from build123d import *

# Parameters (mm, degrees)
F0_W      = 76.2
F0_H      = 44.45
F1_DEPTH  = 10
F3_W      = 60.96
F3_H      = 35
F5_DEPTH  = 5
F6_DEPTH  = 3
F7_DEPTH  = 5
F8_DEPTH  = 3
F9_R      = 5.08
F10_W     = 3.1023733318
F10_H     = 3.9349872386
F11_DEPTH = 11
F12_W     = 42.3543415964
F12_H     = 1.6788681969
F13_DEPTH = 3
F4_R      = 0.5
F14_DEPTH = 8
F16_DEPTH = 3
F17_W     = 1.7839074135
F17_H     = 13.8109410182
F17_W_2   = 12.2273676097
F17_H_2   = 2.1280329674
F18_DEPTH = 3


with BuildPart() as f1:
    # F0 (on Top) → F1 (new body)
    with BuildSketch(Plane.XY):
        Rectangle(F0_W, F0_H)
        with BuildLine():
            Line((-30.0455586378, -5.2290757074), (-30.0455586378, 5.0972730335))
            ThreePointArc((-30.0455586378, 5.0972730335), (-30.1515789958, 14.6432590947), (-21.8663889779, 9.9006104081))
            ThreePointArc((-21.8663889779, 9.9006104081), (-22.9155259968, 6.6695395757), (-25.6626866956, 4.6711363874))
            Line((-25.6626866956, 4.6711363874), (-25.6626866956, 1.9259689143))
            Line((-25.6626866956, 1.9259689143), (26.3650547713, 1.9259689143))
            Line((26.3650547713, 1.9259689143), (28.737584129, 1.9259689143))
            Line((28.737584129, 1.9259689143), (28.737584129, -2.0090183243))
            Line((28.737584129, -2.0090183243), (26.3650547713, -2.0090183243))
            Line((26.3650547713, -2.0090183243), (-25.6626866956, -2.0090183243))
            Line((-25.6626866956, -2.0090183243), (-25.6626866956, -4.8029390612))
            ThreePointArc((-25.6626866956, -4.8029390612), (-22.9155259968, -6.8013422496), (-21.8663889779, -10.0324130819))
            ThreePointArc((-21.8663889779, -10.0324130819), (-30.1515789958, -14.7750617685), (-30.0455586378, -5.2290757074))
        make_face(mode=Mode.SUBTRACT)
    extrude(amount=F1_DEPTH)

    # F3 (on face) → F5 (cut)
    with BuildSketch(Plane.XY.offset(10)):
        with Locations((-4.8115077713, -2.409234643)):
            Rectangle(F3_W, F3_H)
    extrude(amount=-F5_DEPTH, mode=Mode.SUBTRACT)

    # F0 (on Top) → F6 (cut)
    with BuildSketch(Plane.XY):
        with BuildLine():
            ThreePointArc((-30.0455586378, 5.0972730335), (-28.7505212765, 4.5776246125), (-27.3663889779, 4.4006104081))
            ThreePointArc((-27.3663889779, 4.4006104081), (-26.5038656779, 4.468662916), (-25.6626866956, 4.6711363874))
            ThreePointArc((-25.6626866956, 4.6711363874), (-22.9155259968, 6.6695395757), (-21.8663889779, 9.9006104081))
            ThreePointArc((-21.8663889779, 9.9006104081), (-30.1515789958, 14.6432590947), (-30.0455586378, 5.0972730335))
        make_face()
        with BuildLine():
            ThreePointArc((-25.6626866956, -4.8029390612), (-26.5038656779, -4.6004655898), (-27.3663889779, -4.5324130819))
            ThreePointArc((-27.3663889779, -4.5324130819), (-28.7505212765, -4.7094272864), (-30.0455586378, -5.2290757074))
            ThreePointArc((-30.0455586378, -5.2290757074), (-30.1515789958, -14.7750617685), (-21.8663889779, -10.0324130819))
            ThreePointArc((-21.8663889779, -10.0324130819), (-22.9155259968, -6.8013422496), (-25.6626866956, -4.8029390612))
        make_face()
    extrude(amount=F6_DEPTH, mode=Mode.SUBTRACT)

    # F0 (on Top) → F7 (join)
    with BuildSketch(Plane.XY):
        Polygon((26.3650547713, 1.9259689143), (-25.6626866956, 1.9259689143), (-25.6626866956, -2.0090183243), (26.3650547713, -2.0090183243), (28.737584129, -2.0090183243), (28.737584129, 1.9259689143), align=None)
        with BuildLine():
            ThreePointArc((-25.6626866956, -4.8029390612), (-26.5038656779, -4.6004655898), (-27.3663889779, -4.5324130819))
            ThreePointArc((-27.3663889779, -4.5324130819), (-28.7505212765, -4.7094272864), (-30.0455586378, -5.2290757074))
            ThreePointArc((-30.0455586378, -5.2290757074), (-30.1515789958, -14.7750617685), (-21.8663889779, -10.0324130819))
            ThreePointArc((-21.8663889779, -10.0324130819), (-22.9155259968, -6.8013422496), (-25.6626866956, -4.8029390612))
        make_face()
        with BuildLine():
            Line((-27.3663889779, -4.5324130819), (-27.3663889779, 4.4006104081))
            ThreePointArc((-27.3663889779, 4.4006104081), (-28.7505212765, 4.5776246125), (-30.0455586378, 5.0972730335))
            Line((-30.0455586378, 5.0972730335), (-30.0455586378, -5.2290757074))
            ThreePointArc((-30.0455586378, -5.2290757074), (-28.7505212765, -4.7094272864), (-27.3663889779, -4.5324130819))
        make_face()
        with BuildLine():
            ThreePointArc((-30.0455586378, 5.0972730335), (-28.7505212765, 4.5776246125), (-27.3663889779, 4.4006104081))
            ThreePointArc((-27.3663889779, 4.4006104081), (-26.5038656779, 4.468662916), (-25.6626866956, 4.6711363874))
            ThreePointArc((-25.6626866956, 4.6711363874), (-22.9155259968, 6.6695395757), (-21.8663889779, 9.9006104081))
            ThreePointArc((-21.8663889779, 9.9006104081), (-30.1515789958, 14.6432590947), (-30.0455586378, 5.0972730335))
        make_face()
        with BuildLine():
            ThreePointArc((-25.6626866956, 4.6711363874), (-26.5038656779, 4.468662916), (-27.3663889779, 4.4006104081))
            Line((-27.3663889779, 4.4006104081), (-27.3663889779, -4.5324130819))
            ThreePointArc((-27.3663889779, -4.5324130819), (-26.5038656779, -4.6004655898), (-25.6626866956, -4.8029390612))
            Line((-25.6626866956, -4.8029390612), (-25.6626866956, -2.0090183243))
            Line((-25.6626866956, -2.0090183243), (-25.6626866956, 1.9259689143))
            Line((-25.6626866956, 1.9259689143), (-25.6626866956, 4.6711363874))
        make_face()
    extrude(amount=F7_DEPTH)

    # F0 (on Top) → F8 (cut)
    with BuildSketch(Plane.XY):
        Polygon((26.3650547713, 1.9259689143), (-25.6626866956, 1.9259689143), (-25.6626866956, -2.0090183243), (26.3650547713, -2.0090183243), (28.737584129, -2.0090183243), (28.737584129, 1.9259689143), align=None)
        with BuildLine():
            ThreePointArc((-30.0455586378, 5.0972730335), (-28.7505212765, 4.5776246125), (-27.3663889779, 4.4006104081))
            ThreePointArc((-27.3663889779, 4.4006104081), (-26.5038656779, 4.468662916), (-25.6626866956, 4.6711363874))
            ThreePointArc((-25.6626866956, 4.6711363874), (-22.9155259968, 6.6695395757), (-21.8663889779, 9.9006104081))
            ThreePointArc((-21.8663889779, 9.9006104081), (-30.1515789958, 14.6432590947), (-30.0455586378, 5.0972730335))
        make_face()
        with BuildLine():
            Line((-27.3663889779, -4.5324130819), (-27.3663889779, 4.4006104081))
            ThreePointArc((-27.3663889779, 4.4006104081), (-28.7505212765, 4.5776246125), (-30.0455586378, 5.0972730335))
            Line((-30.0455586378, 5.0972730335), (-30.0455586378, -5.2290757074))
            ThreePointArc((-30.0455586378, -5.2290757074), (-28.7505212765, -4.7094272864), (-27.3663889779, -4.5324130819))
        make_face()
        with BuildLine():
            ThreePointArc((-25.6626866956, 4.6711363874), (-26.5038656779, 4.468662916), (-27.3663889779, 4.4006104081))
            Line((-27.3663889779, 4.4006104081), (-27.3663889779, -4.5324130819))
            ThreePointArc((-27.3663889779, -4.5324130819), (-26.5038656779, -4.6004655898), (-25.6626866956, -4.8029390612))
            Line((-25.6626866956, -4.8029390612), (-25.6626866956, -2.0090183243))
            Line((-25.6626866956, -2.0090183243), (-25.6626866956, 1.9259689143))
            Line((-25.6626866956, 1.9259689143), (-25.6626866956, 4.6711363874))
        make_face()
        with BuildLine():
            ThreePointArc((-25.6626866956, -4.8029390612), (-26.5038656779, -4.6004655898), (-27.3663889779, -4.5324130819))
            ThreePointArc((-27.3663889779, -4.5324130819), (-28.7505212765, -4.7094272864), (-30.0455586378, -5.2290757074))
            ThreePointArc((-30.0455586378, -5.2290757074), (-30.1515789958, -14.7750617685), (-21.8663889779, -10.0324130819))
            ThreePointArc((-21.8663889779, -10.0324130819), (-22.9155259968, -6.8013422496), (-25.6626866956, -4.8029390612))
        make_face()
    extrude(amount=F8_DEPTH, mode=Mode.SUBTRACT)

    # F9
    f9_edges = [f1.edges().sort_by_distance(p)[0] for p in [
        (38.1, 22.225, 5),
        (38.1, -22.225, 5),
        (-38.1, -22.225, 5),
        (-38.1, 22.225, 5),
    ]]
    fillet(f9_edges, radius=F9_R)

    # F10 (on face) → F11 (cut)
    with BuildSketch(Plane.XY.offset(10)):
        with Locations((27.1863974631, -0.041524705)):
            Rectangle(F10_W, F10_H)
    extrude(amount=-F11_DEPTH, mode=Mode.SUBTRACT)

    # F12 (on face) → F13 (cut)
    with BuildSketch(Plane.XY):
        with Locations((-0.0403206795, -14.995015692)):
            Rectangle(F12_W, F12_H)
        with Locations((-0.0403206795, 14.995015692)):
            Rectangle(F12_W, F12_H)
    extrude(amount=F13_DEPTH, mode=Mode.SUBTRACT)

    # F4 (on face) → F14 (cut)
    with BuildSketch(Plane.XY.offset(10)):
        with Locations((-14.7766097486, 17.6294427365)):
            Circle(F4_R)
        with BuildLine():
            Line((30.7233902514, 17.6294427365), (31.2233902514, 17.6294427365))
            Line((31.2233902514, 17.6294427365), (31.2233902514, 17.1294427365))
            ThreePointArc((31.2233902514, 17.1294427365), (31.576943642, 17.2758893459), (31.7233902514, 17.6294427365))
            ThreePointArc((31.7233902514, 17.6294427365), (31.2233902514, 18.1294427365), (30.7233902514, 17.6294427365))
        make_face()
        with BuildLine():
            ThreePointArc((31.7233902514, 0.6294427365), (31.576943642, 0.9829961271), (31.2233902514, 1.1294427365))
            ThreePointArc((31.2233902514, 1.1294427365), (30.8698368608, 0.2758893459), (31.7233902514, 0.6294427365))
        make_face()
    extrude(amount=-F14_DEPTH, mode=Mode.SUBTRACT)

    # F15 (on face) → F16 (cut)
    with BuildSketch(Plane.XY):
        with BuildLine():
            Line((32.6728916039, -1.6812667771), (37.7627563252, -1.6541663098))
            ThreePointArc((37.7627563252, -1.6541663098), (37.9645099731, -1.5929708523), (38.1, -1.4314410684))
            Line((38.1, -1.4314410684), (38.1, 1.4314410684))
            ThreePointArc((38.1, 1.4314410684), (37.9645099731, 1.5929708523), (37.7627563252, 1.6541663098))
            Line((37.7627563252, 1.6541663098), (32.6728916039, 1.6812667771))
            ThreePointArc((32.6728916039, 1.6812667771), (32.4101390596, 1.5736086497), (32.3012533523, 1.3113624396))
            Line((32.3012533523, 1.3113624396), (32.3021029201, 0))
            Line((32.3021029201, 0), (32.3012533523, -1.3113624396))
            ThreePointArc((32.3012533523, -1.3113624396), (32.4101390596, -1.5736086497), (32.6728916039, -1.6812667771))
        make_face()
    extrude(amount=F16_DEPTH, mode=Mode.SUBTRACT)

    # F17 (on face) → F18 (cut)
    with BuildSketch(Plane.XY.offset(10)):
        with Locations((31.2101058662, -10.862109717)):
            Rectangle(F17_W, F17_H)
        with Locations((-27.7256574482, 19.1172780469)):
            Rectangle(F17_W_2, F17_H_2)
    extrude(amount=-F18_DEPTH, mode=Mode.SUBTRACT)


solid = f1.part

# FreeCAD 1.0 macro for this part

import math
import FreeCAD as App
import Part
import Sketcher
from FreeCAD import Vector


def edges_at(feature, points):
    """Names of the edges that pass closest to the given points."""
    edges = feature.Shape.Edges
    near = lambda p: min(range(len(edges)), key=lambda i: edges[i].distToShape(Part.Vertex(*p))[0])
    return sorted({f"Edge{near(p) + 1}" for p in points})

doc = App.newDocument("Part")
params = doc.addObject("Spreadsheet::Sheet", "Params")
for row, (alias, value) in enumerate([
    ("sketch1_radius", "5.5 mm"),
    ("sketch1_width", "76.2 mm"),
    ("sketch1_height", "44.45 mm"),
    ("pad1_length", "10 mm"),
    ("sketch2_height", "35 mm"),
    ("sketch2_width", "60.96 mm"),
    ("pocket1_length", "5 mm"),
    ("sketch3_radius", "5.5 mm"),
    ("pocket2_length", "3 mm"),
    ("sketch4_radius", "5.5 mm"),
    ("pad2_length", "5 mm"),
    ("sketch5_radius", "5.5 mm"),
    ("pocket3_length", "3 mm"),
    ("fillet_radius", "5.08 mm"),
    ("pocket4_length", "11 mm"),
    ("pocket5_length", "3 mm"),
    ("sketch8_diameter", "1 mm"),
    ("pocket6_length", "8 mm"),
    ("pocket7_length", "3 mm"),
    ("pocket8_length", "3 mm"),
], start=1):
    params.set(f"A{row}", alias)
    params.set(f"B{row}", "=" + value)
    params.setAlias(f"B{row}", alias)

body = doc.addObject("PartDesign::Body", "Body")

# Sketch on XY plane
sketch1 = body.newObject("Sketcher::SketchObject", "Sketch")
sketch1.AttachmentSupport = (doc.getObject("XY_Plane"), [""])
sketch1.MapMode = "FlatFace"
sketch1.addGeometry([
    Part.LineSegment(Vector(-38.1, 22.2, 0), Vector(-38.1, -22.2, 0)),  # 0
    Part.LineSegment(Vector(-38.1, -22.2, 0), Vector(38.1, -22.2, 0)),  # 1
    Part.LineSegment(Vector(38.1, -22.2, 0), Vector(38.1, 22.2, 0)),  # 2
    Part.LineSegment(Vector(38.1, 22.2, 0), Vector(-38.1, 22.2, 0)),  # 3
    Part.ArcOfCircle(Part.Circle(Vector(-27.4, -10, 0), Vector(0, 0, 1), 5.5), math.radians(119), math.radians(432)),  # 4
    Part.LineSegment(Vector(-30, -5.2, 0), Vector(-30, 5.1, 0)),  # 5
    Part.ArcOfCircle(Part.Circle(Vector(-27.4, 9.9, 0), Vector(0, 0, 1), 5.5), math.radians(0), math.radians(241)),  # 6
    Part.ArcOfCircle(Part.Circle(Vector(-27.4, 9.9, 0), Vector(0, 0, 1), 5.5), math.radians(-72), math.radians(0)),  # 7
    Part.LineSegment(Vector(-25.7, 4.7, 0), Vector(-25.7, 1.9, 0)),  # 8
    Part.LineSegment(Vector(-25.7, 1.9, 0), Vector(28.7, 1.9, 0)),  # 9
    Part.LineSegment(Vector(28.7, 1.9, 0), Vector(28.7, -2, 0)),  # 10
    Part.LineSegment(Vector(28.7, -2, 0), Vector(-25.7, -2, 0)),  # 11
    Part.LineSegment(Vector(-25.7, -2, 0), Vector(-25.7, -4.8, 0)),  # 12
], False)
sketch1.addConstraint([
    Sketcher.Constraint("Coincident", 0, 2, 1, 1),
    Sketcher.Constraint("Coincident", 1, 2, 2, 1),
    Sketcher.Constraint("Coincident", 2, 2, 3, 1),
    Sketcher.Constraint("Coincident", 3, 2, 0, 1),
    Sketcher.Constraint("Coincident", 4, 1, 5, 1),
    Sketcher.Constraint("Coincident", 5, 2, 6, 2),
    Sketcher.Constraint("Tangent", 6, 1, 7, 2),
    Sketcher.Constraint("Coincident", 7, 1, 8, 1),
    Sketcher.Constraint("Coincident", 8, 2, 9, 1),
    Sketcher.Constraint("Coincident", 9, 2, 10, 1),
    Sketcher.Constraint("Coincident", 10, 2, 11, 1),
    Sketcher.Constraint("Coincident", 11, 2, 12, 1),
    Sketcher.Constraint("Coincident", 12, 2, 4, 2),
    Sketcher.Constraint("Vertical", 0),
    Sketcher.Constraint("Horizontal", 1),
    Sketcher.Constraint("Vertical", 2),
    Sketcher.Constraint("Horizontal", 3),
    Sketcher.Constraint("Vertical", 5),
    Sketcher.Constraint("Vertical", 8),
    Sketcher.Constraint("Horizontal", 9),
    Sketcher.Constraint("Vertical", 10),
    Sketcher.Constraint("Horizontal", 11),
    Sketcher.Constraint("Vertical", 12),
    Sketcher.Constraint("Equal", 4, 6),
    Sketcher.Constraint("Equal", 6, 7),
    Sketcher.Constraint("Symmetric", 0, 2, 2, 2, -1, 1),
    Sketcher.Constraint("Horizontal", 7, 3, 6, 1),
    Sketcher.Constraint("Vertical", 4, 3, 6, 3),
    Sketcher.Constraint("Vertical", 8, 2, 11, 2),
    Sketcher.Constraint("Radius", 4, 5.5),
    Sketcher.Constraint("DistanceX", 1, 1, 1, 2, 76.2),
    Sketcher.Constraint("DistanceY", 0, 2, 0, 1, 44.45),
    Sketcher.Constraint("DistanceX", 9, 1, 9, 2, 54.400271),
    Sketcher.Constraint("DistanceY", 5, 1, 5, 2, 10.326349),
    Sketcher.Constraint("DistanceY", 12, 2, 12, 1, 2.793921),
    Sketcher.Constraint("DistanceY", 8, 2, 8, 1, 2.745167),
    Sketcher.Constraint("DistanceY", 10, 2, 10, 1, 3.934987),
    Sketcher.Constraint("DistanceX", 4, 3, -1, 1, 27.366389),
    Sketcher.Constraint("DistanceY", -1, 1, 6, 3, 9.90061),
    Sketcher.Constraint("DistanceX", 4, 1, -1, 1, 30.045559),
])
sketch1.setExpression("Constraints[29]", "Params.sketch1_radius")
sketch1.setExpression("Constraints[30]", "Params.sketch1_width")
sketch1.setExpression("Constraints[31]", "Params.sketch1_height")
pad1 = body.newObject("PartDesign::Pad", "Pad")
pad1.Profile = sketch1
pad1.setExpression("Length", "Params.pad1_length")

# Sketch on XY plane
sketch2 = body.newObject("Sketcher::SketchObject", "Sketch001")
sketch2.AttachmentSupport = (doc.getObject("XY_Plane"), [""])
sketch2.MapMode = "FlatFace"
sketch2.AttachmentOffset = App.Placement(Vector(0, 0, 10), App.Rotation())
sketch2.addGeometry([
    Part.LineSegment(Vector(-35, 15, 0), Vector(-35, -20, 0)),
    Part.LineSegment(Vector(-35, -20, 0), Vector(26, -20, 0)),
    Part.LineSegment(Vector(26, -20, 0), Vector(26, 15, 0)),
    Part.LineSegment(Vector(26, 15, 0), Vector(-35, 15, 0)),
], False)
sketch2.addConstraint([
    Sketcher.Constraint("Coincident", 0, 2, 1, 1),
    Sketcher.Constraint("Coincident", 1, 2, 2, 1),
    Sketcher.Constraint("Coincident", 2, 2, 3, 1),
    Sketcher.Constraint("Coincident", 3, 2, 0, 1),
    Sketcher.Constraint("Vertical", 0),
    Sketcher.Constraint("Horizontal", 1),
    Sketcher.Constraint("Vertical", 2),
    Sketcher.Constraint("Horizontal", 3),
    Sketcher.Constraint("DistanceY", 0, 2, 0, 1, 35.0),
    Sketcher.Constraint("DistanceX", 1, 1, 1, 2, 60.96),
    Sketcher.Constraint("DistanceX", 0, 2, -1, 1, 35.291508),
    Sketcher.Constraint("DistanceY", 0, 2, -1, 1, 19.909235),
])
sketch2.setExpression("Constraints[8]", "Params.sketch2_height")
sketch2.setExpression("Constraints[9]", "Params.sketch2_width")
pocket1 = body.newObject("PartDesign::Pocket", "Pocket")
pocket1.Profile = sketch2
pocket1.setExpression("Length", "Params.pocket1_length")

# Sketch on XY plane
sketch3 = body.newObject("Sketcher::SketchObject", "Sketch002")
sketch3.AttachmentSupport = (doc.getObject("XY_Plane"), [""])
sketch3.MapMode = "FlatFace"
sketch3.addGeometry([
    Part.ArcOfCircle(Part.Circle(Vector(-27.4, 9.9, 0), Vector(0, 0, 1), 5.5), math.radians(-119), math.radians(-72)),  # 0
    Part.ArcOfCircle(Part.Circle(Vector(-27.4, 9.9, 0), Vector(0, 0, 1), 5.5), math.radians(-72), math.radians(0)),  # 1
    Part.ArcOfCircle(Part.Circle(Vector(-27.4, 9.9, 0), Vector(0, 0, 1), 5.5), math.radians(0), math.radians(241)),  # 2
    Part.ArcOfCircle(Part.Circle(Vector(-27.4, -10, 0), Vector(0, 0, 1), 5.5), math.radians(71.95), math.radians(90)),  # 3
    Part.ArcOfCircle(Part.Circle(Vector(-27.4, -10, 0), Vector(0, 0, 1), 5.5), math.radians(90), math.radians(119)),  # 4
    Part.ArcOfCircle(Part.Circle(Vector(-27.4, -10, 0), Vector(0, 0, 1), 5.5), math.radians(119), math.radians(432)),  # 5
], False)
sketch3.addConstraint([
    Sketcher.Constraint("Tangent", 0, 2, 1, 1),
    Sketcher.Constraint("Tangent", 1, 2, 2, 1),
    Sketcher.Constraint("Tangent", 2, 2, 0, 1),
    Sketcher.Constraint("Tangent", 3, 2, 4, 1),
    Sketcher.Constraint("Tangent", 4, 2, 5, 1),
    Sketcher.Constraint("Tangent", 5, 2, 3, 1),
    Sketcher.Constraint("Equal", 2, 3),
    Sketcher.Constraint("Horizontal", 2, 3, 1, 2),
    Sketcher.Constraint("Vertical", 2, 3, 3, 3),
    Sketcher.Constraint("Vertical", 5, 3, 3, 2),
    Sketcher.Constraint("Vertical", 2, 2, 4, 2),
    Sketcher.Constraint("Vertical", 0, 2, 5, 2),
    Sketcher.Constraint("Radius", 0, 5.5),
    Sketcher.Constraint("DistanceX", 0, 3, -1, 1, 27.366389),
    Sketcher.Constraint("DistanceY", -1, 1, 0, 3, 9.90061),
    Sketcher.Constraint("DistanceX", 2, 2, -1, 1, 30.045559),
    Sketcher.Constraint("DistanceY", 5, 2, -1, 1, 4.802939),
    Sketcher.Constraint("DistanceX", 2, 2, 0, 2, 4.382872),
])
sketch3.setExpression("Constraints[12]", "Params.sketch3_radius")
pocket2 = body.newObject("PartDesign::Pocket", "Pocket001")
pocket2.Profile = sketch3
pocket2.setExpression("Length", "Params.pocket2_length")
pocket2.Reversed = True

# Sketch on XY plane
sketch4 = body.newObject("Sketcher::SketchObject", "Sketch003")
sketch4.AttachmentSupport = (doc.getObject("XY_Plane"), [""])
sketch4.MapMode = "FlatFace"
sketch4.addGeometry([
    Part.LineSegment(Vector(-25.7, -2, 0), Vector(28.7, -2, 0)),  # 0
    Part.LineSegment(Vector(28.7, -2, 0), Vector(28.7, 1.9, 0)),  # 1
    Part.LineSegment(Vector(28.7, 1.9, 0), Vector(-25.7, 1.9, 0)),  # 2
    Part.LineSegment(Vector(-25.7, 1.9, 0), Vector(-25.7, 4.7, 0)),  # 3
    Part.ArcOfCircle(Part.Circle(Vector(-27.4, 9.9, 0), Vector(0, 0, 1), 5.5), math.radians(-72), math.radians(0)),  # 4
    Part.ArcOfCircle(Part.Circle(Vector(-27.4, 9.9, 0), Vector(0, 0, 1), 5.5), math.radians(0), math.radians(241)),  # 5
    Part.LineSegment(Vector(-30, 5.1, 0), Vector(-30, -5.2, 0)),  # 6
    Part.ArcOfCircle(Part.Circle(Vector(-27.4, -10, 0), Vector(0, 0, 1), 5.5), math.radians(119), math.radians(432)),  # 7
    Part.LineSegment(Vector(-25.7, -4.8, 0), Vector(-25.7, -2, 0)),  # 8
], False)
sketch4.addConstraint([
    Sketcher.Constraint("Coincident", 0, 2, 1, 1),
    Sketcher.Constraint("Coincident", 1, 2, 2, 1),
    Sketcher.Constraint("Coincident", 2, 2, 3, 1),
    Sketcher.Constraint("Coincident", 3, 2, 4, 1),
    Sketcher.Constraint("Tangent", 4, 2, 5, 1),
    Sketcher.Constraint("Coincident", 5, 2, 6, 1),
    Sketcher.Constraint("Coincident", 6, 2, 7, 1),
    Sketcher.Constraint("Coincident", 7, 2, 8, 1),
    Sketcher.Constraint("Coincident", 8, 2, 0, 1),
    Sketcher.Constraint("Horizontal", 0),
    Sketcher.Constraint("Vertical", 1),
    Sketcher.Constraint("Horizontal", 2),
    Sketcher.Constraint("Vertical", 3),
    Sketcher.Constraint("Vertical", 6),
    Sketcher.Constraint("Vertical", 8),
    Sketcher.Constraint("Equal", 4, 5),
    Sketcher.Constraint("Equal", 5, 7),
    Sketcher.Constraint("Horizontal", 5, 3, 4, 2),
    Sketcher.Constraint("Vertical", 5, 3, 7, 3),
    Sketcher.Constraint("Vertical", 3, 2, 7, 2),
    Sketcher.Constraint("Radius", 4, 5.5),
    Sketcher.Constraint("DistanceX", 0, 1, 0, 2, 54.400271),
    Sketcher.Constraint("DistanceY", 6, 2, 6, 1, 10.326349),
    Sketcher.Constraint("DistanceY", 8, 1, 8, 2, 2.793921),
    Sketcher.Constraint("DistanceY", 1, 1, 1, 2, 3.934987),
    Sketcher.Constraint("DistanceY", 3, 1, 3, 2, 2.745167),
    Sketcher.Constraint("DistanceX", 4, 3, -1, 1, 27.366389),
    Sketcher.Constraint("DistanceY", -1, 1, 4, 3, 9.90061),
    Sketcher.Constraint("DistanceY", 0, 2, -1, 1, 2.009018),
])
sketch4.setExpression("Constraints[20]", "Params.sketch4_radius")
pad2 = body.newObject("PartDesign::Pad", "Pad001")
pad2.Profile = sketch4
pad2.setExpression("Length", "Params.pad2_length")

# Sketch on XY plane
sketch5 = body.newObject("Sketcher::SketchObject", "Sketch004")
sketch5.AttachmentSupport = (doc.getObject("XY_Plane"), [""])
sketch5.MapMode = "FlatFace"
sketch5.addGeometry([
    Part.LineSegment(Vector(-25.7, -2, 0), Vector(28.7, -2, 0)),  # 0
    Part.LineSegment(Vector(28.7, -2, 0), Vector(28.7, 1.9, 0)),  # 1
    Part.LineSegment(Vector(28.7, 1.9, 0), Vector(-25.7, 1.9, 0)),  # 2
    Part.LineSegment(Vector(-25.7, 1.9, 0), Vector(-25.7, 4.7, 0)),  # 3
    Part.ArcOfCircle(Part.Circle(Vector(-27.4, 9.9, 0), Vector(0, 0, 1), 5.5), math.radians(-72), math.radians(0)),  # 4
    Part.ArcOfCircle(Part.Circle(Vector(-27.4, 9.9, 0), Vector(0, 0, 1), 5.5), math.radians(0), math.radians(241)),  # 5
    Part.LineSegment(Vector(-30, 5.1, 0), Vector(-30, -5.2, 0)),  # 6
    Part.ArcOfCircle(Part.Circle(Vector(-27.4, -10, 0), Vector(0, 0, 1), 5.5), math.radians(119), math.radians(432)),  # 7
    Part.LineSegment(Vector(-25.7, -4.8, 0), Vector(-25.7, -2, 0)),  # 8
], False)
sketch5.addConstraint([
    Sketcher.Constraint("Coincident", 0, 2, 1, 1),
    Sketcher.Constraint("Coincident", 1, 2, 2, 1),
    Sketcher.Constraint("Coincident", 2, 2, 3, 1),
    Sketcher.Constraint("Coincident", 3, 2, 4, 1),
    Sketcher.Constraint("Tangent", 4, 2, 5, 1),
    Sketcher.Constraint("Coincident", 5, 2, 6, 1),
    Sketcher.Constraint("Coincident", 6, 2, 7, 1),
    Sketcher.Constraint("Coincident", 7, 2, 8, 1),
    Sketcher.Constraint("Coincident", 8, 2, 0, 1),
    Sketcher.Constraint("Horizontal", 0),
    Sketcher.Constraint("Vertical", 1),
    Sketcher.Constraint("Horizontal", 2),
    Sketcher.Constraint("Vertical", 3),
    Sketcher.Constraint("Vertical", 6),
    Sketcher.Constraint("Vertical", 8),
    Sketcher.Constraint("Equal", 4, 5),
    Sketcher.Constraint("Equal", 5, 7),
    Sketcher.Constraint("Horizontal", 5, 3, 4, 2),
    Sketcher.Constraint("Vertical", 5, 3, 7, 3),
    Sketcher.Constraint("Vertical", 3, 2, 7, 2),
    Sketcher.Constraint("Radius", 4, 5.5),
    Sketcher.Constraint("DistanceX", 0, 1, 0, 2, 54.400271),
    Sketcher.Constraint("DistanceY", 6, 2, 6, 1, 10.326349),
    Sketcher.Constraint("DistanceY", 8, 1, 8, 2, 2.793921),
    Sketcher.Constraint("DistanceY", 1, 1, 1, 2, 3.934987),
    Sketcher.Constraint("DistanceY", 3, 1, 3, 2, 2.745167),
    Sketcher.Constraint("DistanceX", 4, 3, -1, 1, 27.366389),
    Sketcher.Constraint("DistanceY", -1, 1, 4, 3, 9.90061),
    Sketcher.Constraint("DistanceY", 0, 2, -1, 1, 2.009018),
])
sketch5.setExpression("Constraints[20]", "Params.sketch5_radius")
pocket3 = body.newObject("PartDesign::Pocket", "Pocket002")
pocket3.Profile = sketch5
pocket3.setExpression("Length", "Params.pocket3_length")
pocket3.Reversed = True
doc.recompute()

fillet = body.newObject("PartDesign::Fillet", "Fillet")
fillet.Base = (pocket3, edges_at(pocket3, [
    (38.1, 22.225, 5),
    (38.1, -22.225, 5),
    (-38.1, -22.225, 5),
    (-38.1, 22.225, 5),
]))
fillet.setExpression("Radius", "Params.fillet_radius")

# Sketch on XY plane
sketch6 = body.newObject("Sketcher::SketchObject", "Sketch005")
sketch6.AttachmentSupport = (doc.getObject("XY_Plane"), [""])
sketch6.MapMode = "FlatFace"
sketch6.AttachmentOffset = App.Placement(Vector(0, 0, 10), App.Rotation())
sketch6.addGeometry([
    Part.LineSegment(Vector(25.6, 1.9, 0), Vector(25.6, -2, 0)),
    Part.LineSegment(Vector(25.6, -2, 0), Vector(28.7, -2, 0)),
    Part.LineSegment(Vector(28.7, -2, 0), Vector(28.7, 1.9, 0)),
    Part.LineSegment(Vector(28.7, 1.9, 0), Vector(25.6, 1.9, 0)),
], False)
sketch6.addConstraint([
    Sketcher.Constraint("Coincident", 0, 2, 1, 1),
    Sketcher.Constraint("Coincident", 1, 2, 2, 1),
    Sketcher.Constraint("Coincident", 2, 2, 3, 1),
    Sketcher.Constraint("Coincident", 3, 2, 0, 1),
    Sketcher.Constraint("Vertical", 0),
    Sketcher.Constraint("Horizontal", 1),
    Sketcher.Constraint("Vertical", 2),
    Sketcher.Constraint("Horizontal", 3),
    Sketcher.Constraint("DistanceX", 1, 1, 1, 2, 3.102373),
    Sketcher.Constraint("DistanceY", 0, 2, 0, 1, 3.934987),
    Sketcher.Constraint("DistanceX", -1, 1, 0, 2, 25.635211),
    Sketcher.Constraint("DistanceY", 0, 2, -1, 1, 2.009018),
])
pocket4 = body.newObject("PartDesign::Pocket", "Pocket003")
pocket4.Profile = sketch6
pocket4.setExpression("Length", "Params.pocket4_length")

# Sketch on XY plane
sketch7 = body.newObject("Sketcher::SketchObject", "Sketch006")
sketch7.AttachmentSupport = (doc.getObject("XY_Plane"), [""])
sketch7.MapMode = "FlatFace"
sketch7.addGeometry([
    Part.LineSegment(Vector(-21.2, -14.2, 0), Vector(-21.2, -15.8, 0)),  # 0
    Part.LineSegment(Vector(-21.2, -15.8, 0), Vector(21.1, -15.8, 0)),  # 1
    Part.LineSegment(Vector(21.1, -15.8, 0), Vector(21.1, -14.2, 0)),  # 2
    Part.LineSegment(Vector(21.1, -14.2, 0), Vector(-21.2, -14.2, 0)),  # 3
    Part.LineSegment(Vector(-21.2, 15.8, 0), Vector(-21.2, 14.2, 0)),  # 4
    Part.LineSegment(Vector(-21.2, 14.2, 0), Vector(21.1, 14.2, 0)),  # 5
    Part.LineSegment(Vector(21.1, 14.2, 0), Vector(21.1, 15.8, 0)),  # 6
    Part.LineSegment(Vector(21.1, 15.8, 0), Vector(-21.2, 15.8, 0)),  # 7
], False)
sketch7.addConstraint([
    Sketcher.Constraint("Coincident", 0, 2, 1, 1),
    Sketcher.Constraint("Coincident", 1, 2, 2, 1),
    Sketcher.Constraint("Coincident", 2, 2, 3, 1),
    Sketcher.Constraint("Coincident", 3, 2, 0, 1),
    Sketcher.Constraint("Coincident", 4, 2, 5, 1),
    Sketcher.Constraint("Coincident", 5, 2, 6, 1),
    Sketcher.Constraint("Coincident", 6, 2, 7, 1),
    Sketcher.Constraint("Coincident", 7, 2, 4, 1),
    Sketcher.Constraint("Vertical", 0),
    Sketcher.Constraint("Horizontal", 1),
    Sketcher.Constraint("Vertical", 2),
    Sketcher.Constraint("Horizontal", 3),
    Sketcher.Constraint("Vertical", 4),
    Sketcher.Constraint("Horizontal", 5),
    Sketcher.Constraint("Vertical", 6),
    Sketcher.Constraint("Horizontal", 7),
    Sketcher.Constraint("Symmetric", 3, 2, 4, 2, -1),
    Sketcher.Constraint("Symmetric", 1, 2, 6, 2, -1),
    Sketcher.Constraint("DistanceX", 1, 1, 1, 2, 42.354342),
    Sketcher.Constraint("DistanceY", 0, 2, 0, 1, 1.678868),
    Sketcher.Constraint("DistanceY", 1, 2, 6, 2, 31.6689),
    Sketcher.Constraint("DistanceX", 0, 2, -1, 1, 21.217491),
])
pocket5 = body.newObject("PartDesign::Pocket", "Pocket004")
pocket5.Profile = sketch7
pocket5.setExpression("Length", "Params.pocket5_length")
pocket5.Reversed = True

# Sketch on XY plane
sketch8 = body.newObject("Sketcher::SketchObject", "Sketch007")
sketch8.AttachmentSupport = (doc.getObject("XY_Plane"), [""])
sketch8.MapMode = "FlatFace"
sketch8.AttachmentOffset = App.Placement(Vector(0, 0, 10), App.Rotation())
sketch8.addGeometry([
    Part.Circle(Vector(-14.8, 17.6, 0), Vector(0, 0, 1), 0.5),  # 0
    Part.LineSegment(Vector(30.7, 17.6, 0), Vector(31.2, 17.6, 0)),  # 1
    Part.LineSegment(Vector(31.2, 17.6, 0), Vector(31.2, 17.1, 0)),  # 2
    Part.ArcOfCircle(Part.Circle(Vector(31.2, 17.6, 0), Vector(0, 0, 1), 0.5), math.radians(-90), math.radians(0)),  # 3
    Part.ArcOfCircle(Part.Circle(Vector(31.2, 17.6, 0), Vector(0, 0, 1), 0.5), math.radians(0), math.radians(180)),  # 4
    Part.ArcOfCircle(Part.Circle(Vector(31.2, 0.6, 0), Vector(0, 0, 1), 0.5), math.radians(0), math.radians(90)),  # 5
    Part.ArcOfCircle(Part.Circle(Vector(31.2, 0.6, 0), Vector(0, 0, 1), 0.5), math.radians(90), math.radians(360)),  # 6
], False)
sketch8.addConstraint([
    Sketcher.Constraint("Coincident", 1, 2, 2, 1),
    Sketcher.Constraint("Coincident", 2, 2, 3, 1),
    Sketcher.Constraint("Tangent", 3, 2, 4, 1),
    Sketcher.Constraint("Coincident", 4, 2, 1, 1),
    Sketcher.Constraint("Tangent", 5, 1, 6, 2),
    Sketcher.Constraint("Coincident", 6, 1, 5, 2),
    Sketcher.Constraint("Horizontal", 1),
    Sketcher.Constraint("Vertical", 2),
    Sketcher.Constraint("Coincident", 1, 2, 3, 3),
    Sketcher.Constraint("Equal", 0, 3),
    Sketcher.Constraint("Equal", 3, 4),
    Sketcher.Constraint("Equal", 4, 5),
    Sketcher.Constraint("Horizontal", 0, 3, 3, 3),
    Sketcher.Constraint("Horizontal", 1, 2, 3, 2),
    Sketcher.Constraint("Horizontal", 6, 3, 5, 1),
    Sketcher.Constraint("Vertical", 4, 3, 5, 3),
    Sketcher.Constraint("Vertical", 2, 2, 6, 1),
    Sketcher.Constraint("Diameter", 0, 1.0),
    Sketcher.Constraint("DistanceX", 0, 3, 3, 3, 46.0),
    Sketcher.Constraint("DistanceY", 5, 3, 3, 3, 17.0),
    Sketcher.Constraint("DistanceX", 0, 3, -1, 1, 14.77661),
    Sketcher.Constraint("DistanceY", -1, 1, 0, 3, 17.629443),
])
sketch8.setExpression("Constraints[17]", "Params.sketch8_diameter")
pocket6 = body.newObject("PartDesign::Pocket", "Pocket005")
pocket6.Profile = sketch8
pocket6.setExpression("Length", "Params.pocket6_length")

# Sketch on XY plane
sketch9 = body.newObject("Sketcher::SketchObject", "Sketch008")
sketch9.AttachmentSupport = (doc.getObject("XY_Plane"), [""])
sketch9.MapMode = "FlatFace"
sketch9.addGeometry([
    Part.LineSegment(Vector(32.67, -1.68, 0), Vector(37.76, -1.65, 0)),  # 0
    Part.ArcOfCircle(Part.Circle(Vector(37.76, -1.28, 0), Vector(0, 0, 1), 0.37), math.radians(-90), math.radians(-23)),  # 1
    Part.LineSegment(Vector(38.1, -1.43, 0), Vector(38.1, 1.43, 0)),  # 2
    Part.ArcOfCircle(Part.Circle(Vector(37.76, 1.28, 0), Vector(0, 0, 1), 0.37), math.radians(23), math.radians(90)),  # 3
    Part.LineSegment(Vector(37.76, 1.65, 0), Vector(32.67, 1.68, 0)),  # 4
    Part.ArcOfCircle(Part.Circle(Vector(32.67, 1.31, 0), Vector(0, 0, 1), 0.37), math.radians(90), math.radians(180)),  # 5
    Part.LineSegment(Vector(32.3, 1.31, 0), Vector(32.3, 0, 0)),  # 6
    Part.LineSegment(Vector(32.3, 0, 0), Vector(32.3, -1.31, 0)),  # 7
    Part.ArcOfCircle(Part.Circle(Vector(32.67, -1.31, 0), Vector(0, 0, 1), 0.37), math.radians(180), math.radians(270)),  # 8
], False)
sketch9.addConstraint([
    Sketcher.Constraint("Tangent", 0, 2, 1, 1),
    Sketcher.Constraint("Coincident", 1, 2, 2, 1),
    Sketcher.Constraint("Coincident", 2, 2, 3, 1),
    Sketcher.Constraint("Tangent", 3, 2, 4, 1),
    Sketcher.Constraint("Tangent", 4, 2, 5, 1),
    Sketcher.Constraint("Tangent", 5, 2, 6, 1),
    Sketcher.Constraint("Coincident", 6, 2, 7, 1),
    Sketcher.Constraint("Tangent", 7, 2, 8, 1),
    Sketcher.Constraint("Tangent", 8, 2, 0, 1),
    Sketcher.Constraint("Vertical", 2),
    Sketcher.Constraint("Equal", 1, 3),
    Sketcher.Constraint("Equal", 3, 5),
    Sketcher.Constraint("Equal", 5, 8),
    Sketcher.Constraint("Symmetric", 1, 3, 3, 3, -1),
    Sketcher.Constraint("Symmetric", 5, 3, 8, 3, -1),
    Sketcher.Constraint("PointOnObject", 6, 2, -1),
    Sketcher.Constraint("DistanceX", -1, 1, 1, 2, 38.1),
    Sketcher.Constraint("Radius", 1, 0.36967),
    Sketcher.Constraint("DistanceY", 1, 3, -1, 1, 1.284501),
    Sketcher.Constraint("DistanceY", -1, 1, 5, 3, 1.311602),
    Sketcher.Constraint("DistanceY", 2, 1, 2, 2, 2.862882),
    Sketcher.Constraint("DistanceX", -1, 1, 4, 2, 32.672892),
    Sketcher.Constraint("DistanceY", 5, 2, 5, 3, 0.000239),
])
pocket7 = body.newObject("PartDesign::Pocket", "Pocket006")
pocket7.Profile = sketch9
pocket7.setExpression("Length", "Params.pocket7_length")
pocket7.Reversed = True

# Sketch on XY plane
sketch10 = body.newObject("Sketcher::SketchObject", "Sketch009")
sketch10.AttachmentSupport = (doc.getObject("XY_Plane"), [""])
sketch10.MapMode = "FlatFace"
sketch10.AttachmentOffset = App.Placement(Vector(0, 0, 10), App.Rotation())
sketch10.addGeometry([
    Part.LineSegment(Vector(30.3, -4, 0), Vector(30.3, -17.8, 0)),  # 0
    Part.LineSegment(Vector(30.3, -17.8, 0), Vector(32.1, -17.8, 0)),  # 1
    Part.LineSegment(Vector(32.1, -17.8, 0), Vector(32.1, -4, 0)),  # 2
    Part.LineSegment(Vector(32.1, -4, 0), Vector(30.3, -4, 0)),  # 3
    Part.LineSegment(Vector(-33.8, 20.2, 0), Vector(-33.8, 18.1, 0)),  # 4
    Part.LineSegment(Vector(-33.8, 18.1, 0), Vector(-21.6, 18.1, 0)),  # 5
    Part.LineSegment(Vector(-21.6, 18.1, 0), Vector(-21.6, 20.2, 0)),  # 6
    Part.LineSegment(Vector(-21.6, 20.2, 0), Vector(-33.8, 20.2, 0)),  # 7
], False)
sketch10.addConstraint([
    Sketcher.Constraint("Coincident", 0, 2, 1, 1),
    Sketcher.Constraint("Coincident", 1, 2, 2, 1),
    Sketcher.Constraint("Coincident", 2, 2, 3, 1),
    Sketcher.Constraint("Coincident", 3, 2, 0, 1),
    Sketcher.Constraint("Coincident", 4, 2, 5, 1),
    Sketcher.Constraint("Coincident", 5, 2, 6, 1),
    Sketcher.Constraint("Coincident", 6, 2, 7, 1),
    Sketcher.Constraint("Coincident", 7, 2, 4, 1),
    Sketcher.Constraint("Vertical", 0),
    Sketcher.Constraint("Horizontal", 1),
    Sketcher.Constraint("Vertical", 2),
    Sketcher.Constraint("Horizontal", 3),
    Sketcher.Constraint("Vertical", 4),
    Sketcher.Constraint("Horizontal", 5),
    Sketcher.Constraint("Vertical", 6),
    Sketcher.Constraint("Horizontal", 7),
    Sketcher.Constraint("DistanceY", 0, 2, 0, 1, 13.810941),
    Sketcher.Constraint("DistanceY", 3, 2, 4, 2, 22.009901),
    Sketcher.Constraint("DistanceX", 4, 2, 2, 2, 65.941401),
    Sketcher.Constraint("DistanceX", 1, 1, 1, 2, 1.783907),
    Sketcher.Constraint("DistanceX", 5, 1, 5, 2, 12.227368),
    Sketcher.Constraint("DistanceY", 4, 2, 4, 1, 2.128033),
    Sketcher.Constraint("DistanceY", 0, 2, -1, 1, 17.76758),
    Sketcher.Constraint("DistanceX", -1, 1, 1, 2, 32.10206),
])
pocket8 = body.newObject("PartDesign::Pocket", "Pocket007")
pocket8.Profile = sketch10
pocket8.setExpression("Length", "Params.pocket8_length")

doc.recompute()
